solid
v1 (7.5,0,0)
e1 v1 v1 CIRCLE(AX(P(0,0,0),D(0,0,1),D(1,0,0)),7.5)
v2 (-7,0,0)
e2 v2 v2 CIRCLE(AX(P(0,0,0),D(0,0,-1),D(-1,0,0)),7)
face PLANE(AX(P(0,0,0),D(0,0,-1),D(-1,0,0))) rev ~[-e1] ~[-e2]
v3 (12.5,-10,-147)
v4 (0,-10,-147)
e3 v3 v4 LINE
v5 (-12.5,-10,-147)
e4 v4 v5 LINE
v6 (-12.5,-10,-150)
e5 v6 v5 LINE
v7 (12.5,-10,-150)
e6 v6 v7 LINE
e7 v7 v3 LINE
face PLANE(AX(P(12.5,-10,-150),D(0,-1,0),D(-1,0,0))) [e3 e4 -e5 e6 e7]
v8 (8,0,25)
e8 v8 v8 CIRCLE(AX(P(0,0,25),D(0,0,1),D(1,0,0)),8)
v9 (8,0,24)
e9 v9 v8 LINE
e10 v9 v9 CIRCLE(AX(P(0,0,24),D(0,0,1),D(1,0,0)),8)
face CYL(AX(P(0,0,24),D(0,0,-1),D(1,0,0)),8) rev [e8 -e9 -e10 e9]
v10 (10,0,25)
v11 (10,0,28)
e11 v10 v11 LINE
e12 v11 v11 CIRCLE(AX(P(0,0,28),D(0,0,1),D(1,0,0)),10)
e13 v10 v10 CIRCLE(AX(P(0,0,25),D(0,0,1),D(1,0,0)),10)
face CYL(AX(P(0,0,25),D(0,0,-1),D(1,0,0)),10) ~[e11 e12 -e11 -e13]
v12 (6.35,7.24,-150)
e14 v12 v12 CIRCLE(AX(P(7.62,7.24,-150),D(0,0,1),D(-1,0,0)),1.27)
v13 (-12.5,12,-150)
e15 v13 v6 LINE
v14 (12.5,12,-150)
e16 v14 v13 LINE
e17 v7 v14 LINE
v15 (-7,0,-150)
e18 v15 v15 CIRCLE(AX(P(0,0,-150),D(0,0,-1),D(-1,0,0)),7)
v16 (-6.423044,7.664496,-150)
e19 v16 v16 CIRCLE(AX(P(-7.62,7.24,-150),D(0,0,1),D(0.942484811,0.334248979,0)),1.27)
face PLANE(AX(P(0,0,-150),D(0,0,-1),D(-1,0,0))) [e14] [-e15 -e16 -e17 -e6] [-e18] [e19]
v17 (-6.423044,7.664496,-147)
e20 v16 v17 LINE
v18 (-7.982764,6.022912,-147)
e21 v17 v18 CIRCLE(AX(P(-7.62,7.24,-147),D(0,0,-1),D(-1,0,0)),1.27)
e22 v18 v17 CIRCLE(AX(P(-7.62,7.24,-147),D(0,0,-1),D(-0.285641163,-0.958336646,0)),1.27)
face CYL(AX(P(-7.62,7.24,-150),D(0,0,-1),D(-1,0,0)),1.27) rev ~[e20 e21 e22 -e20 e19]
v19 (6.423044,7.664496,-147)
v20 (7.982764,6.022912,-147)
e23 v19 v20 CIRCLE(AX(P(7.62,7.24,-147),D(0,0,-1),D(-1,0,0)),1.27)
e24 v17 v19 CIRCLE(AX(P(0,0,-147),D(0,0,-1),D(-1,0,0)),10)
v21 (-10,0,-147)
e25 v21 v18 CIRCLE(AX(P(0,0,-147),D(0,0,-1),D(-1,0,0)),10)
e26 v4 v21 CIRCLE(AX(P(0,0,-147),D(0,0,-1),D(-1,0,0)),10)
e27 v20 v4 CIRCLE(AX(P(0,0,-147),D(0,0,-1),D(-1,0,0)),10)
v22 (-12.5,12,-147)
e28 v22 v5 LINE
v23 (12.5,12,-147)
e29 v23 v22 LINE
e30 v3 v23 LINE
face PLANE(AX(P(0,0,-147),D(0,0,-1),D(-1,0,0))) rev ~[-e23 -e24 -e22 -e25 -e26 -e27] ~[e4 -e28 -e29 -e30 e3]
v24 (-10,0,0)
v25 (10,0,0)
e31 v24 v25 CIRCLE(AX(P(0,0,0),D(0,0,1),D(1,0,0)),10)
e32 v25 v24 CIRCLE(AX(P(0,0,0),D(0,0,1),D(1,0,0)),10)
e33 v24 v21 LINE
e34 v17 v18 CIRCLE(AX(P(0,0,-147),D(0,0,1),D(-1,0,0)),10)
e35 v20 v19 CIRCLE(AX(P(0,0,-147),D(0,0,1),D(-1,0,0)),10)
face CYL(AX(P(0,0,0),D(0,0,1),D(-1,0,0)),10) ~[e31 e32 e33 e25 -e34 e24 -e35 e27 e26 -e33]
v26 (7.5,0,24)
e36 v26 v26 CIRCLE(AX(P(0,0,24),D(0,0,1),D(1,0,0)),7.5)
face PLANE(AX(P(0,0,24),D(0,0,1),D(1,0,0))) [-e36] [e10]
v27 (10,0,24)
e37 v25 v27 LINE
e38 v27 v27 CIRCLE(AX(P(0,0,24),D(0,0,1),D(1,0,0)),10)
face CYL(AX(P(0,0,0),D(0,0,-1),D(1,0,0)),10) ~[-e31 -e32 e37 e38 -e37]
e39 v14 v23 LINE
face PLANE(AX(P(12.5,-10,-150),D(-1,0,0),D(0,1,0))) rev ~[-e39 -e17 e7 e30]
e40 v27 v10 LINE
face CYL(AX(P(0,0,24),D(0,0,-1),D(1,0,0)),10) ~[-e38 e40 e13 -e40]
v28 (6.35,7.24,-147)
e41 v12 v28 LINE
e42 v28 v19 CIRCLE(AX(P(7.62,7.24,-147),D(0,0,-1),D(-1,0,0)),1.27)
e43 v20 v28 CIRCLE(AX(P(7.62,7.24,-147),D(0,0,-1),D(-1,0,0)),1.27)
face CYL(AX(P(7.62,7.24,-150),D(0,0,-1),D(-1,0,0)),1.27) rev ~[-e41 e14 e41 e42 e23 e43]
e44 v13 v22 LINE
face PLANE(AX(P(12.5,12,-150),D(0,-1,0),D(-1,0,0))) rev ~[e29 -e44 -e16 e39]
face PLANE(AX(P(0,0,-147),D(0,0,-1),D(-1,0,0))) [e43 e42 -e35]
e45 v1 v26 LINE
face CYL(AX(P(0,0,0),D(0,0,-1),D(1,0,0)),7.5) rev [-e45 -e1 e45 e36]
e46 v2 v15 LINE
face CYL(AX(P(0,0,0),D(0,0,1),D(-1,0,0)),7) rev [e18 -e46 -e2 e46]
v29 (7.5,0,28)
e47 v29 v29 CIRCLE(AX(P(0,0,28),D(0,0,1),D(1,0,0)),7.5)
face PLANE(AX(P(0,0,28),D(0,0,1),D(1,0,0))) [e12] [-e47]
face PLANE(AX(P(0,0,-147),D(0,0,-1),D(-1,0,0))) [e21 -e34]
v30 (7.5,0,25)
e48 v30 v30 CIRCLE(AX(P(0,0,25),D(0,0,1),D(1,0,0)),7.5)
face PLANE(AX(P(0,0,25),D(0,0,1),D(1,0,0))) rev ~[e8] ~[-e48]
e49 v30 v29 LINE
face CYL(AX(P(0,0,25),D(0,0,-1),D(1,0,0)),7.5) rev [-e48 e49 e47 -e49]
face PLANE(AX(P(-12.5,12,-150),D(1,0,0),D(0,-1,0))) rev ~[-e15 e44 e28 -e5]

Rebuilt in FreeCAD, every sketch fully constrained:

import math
import FreeCAD as App
import Part
import Sketcher
from FreeCAD import Vector
Q = App.Units.Quantity

doc = App.newDocument("Part")
body = doc.addObject("PartDesign::Body", "Body")

# Sketch on XY plane
sketch1 = body.newObject("Sketcher::SketchObject", "Sketch")
sketch1.AttachmentSupport = (doc.getObject("XY_Plane"), [""])
sketch1.MapMode = "FlatFace"
sketch1.addGeometry([
    Part.Circle(Vector(0, 0, 0), Vector(0, 0, 1), 10),
    Part.Circle(Vector(0, 0, 0), Vector(0, 0, 1), 7.5),
], False)
sketch1.addConstraint([
    Sketcher.Constraint("Coincident", 0, 3, -1, 1),
    Sketcher.Constraint("Coincident", 1, 3, -1, 1),
    Sketcher.Constraint("Diameter", 0, Q("20 mm")),
    Sketcher.Constraint("Diameter", 1, Q("15 mm")),
])
pad1 = body.newObject("PartDesign::Pad", "Pad")
pad1.Profile = sketch1
pad1.Length = 24

# Sketch on XY plane
sketch2 = body.newObject("Sketcher::SketchObject", "Sketch001")
sketch2.AttachmentSupport = (doc.getObject("XY_Plane"), [""])
sketch2.MapMode = "FlatFace"
sketch2.addGeometry([
    Part.Circle(Vector(0, 0, 0), Vector(0, 0, 1), 10),
    Part.Circle(Vector(0, 0, 0), Vector(0, 0, 1), 7),
], False)
sketch2.addConstraint([
    Sketcher.Constraint("Coincident", 0, 3, -1, 1),
    Sketcher.Constraint("Coincident", 1, 3, -1, 1),
    Sketcher.Constraint("Diameter", 1, Q("14 mm")),
    Sketcher.Constraint("Diameter", 0, Q("20 mm")),
])
pad2 = body.newObject("PartDesign::Pad", "Pad001")
pad2.Profile = sketch2
pad2.Length = 150
pad2.Reversed = True

# Sketch on XY plane
sketch3 = body.newObject("Sketcher::SketchObject", "Sketch002")
sketch3.AttachmentSupport = (doc.getObject("XY_Plane"), [""])
sketch3.MapMode = "FlatFace"
sketch3.AttachmentOffset = App.Placement(Vector(0, 0, 24), App.Rotation())
sketch3.addGeometry([
    Part.Circle(Vector(0, 0, 0), Vector(0, 0, 1), 10),
    Part.Circle(Vector(0, 0, 0), Vector(0, 0, 1), 8),
], False)
sketch3.addConstraint([
    Sketcher.Constraint("Coincident", 0, 3, -1, 1),
    Sketcher.Constraint("Coincident", 1, 3, -1, 1),
    Sketcher.Constraint("Diameter", 0, Q("20 mm")),
    Sketcher.Constraint("Diameter", 1, Q("16 mm")),
])
pad3 = body.newObject("PartDesign::Pad", "Pad002")
pad3.Profile = sketch3
pad3.Length = 1

# Sketch on XY plane
sketch4 = body.newObject("Sketcher::SketchObject", "Sketch003")
sketch4.AttachmentSupport = (doc.getObject("XY_Plane"), [""])
sketch4.MapMode = "FlatFace"
sketch4.AttachmentOffset = App.Placement(Vector(0, 0, 25), App.Rotation())
sketch4.addGeometry([
    Part.Circle(Vector(0, 0, 0), Vector(0, 0, 1), 10),
    Part.Circle(Vector(0, 0, 0), Vector(0, 0, 1), 7.5),
], False)
sketch4.addConstraint([
    Sketcher.Constraint("Coincident", 0, 3, -1, 1),
    Sketcher.Constraint("Coincident", 1, 3, -1, 1),
    Sketcher.Constraint("Diameter", 0, Q("20 mm")),
    Sketcher.Constraint("Diameter", 1, Q("15 mm")),
])
pad4 = body.newObject("PartDesign::Pad", "Pad003")
pad4.Profile = sketch4
pad4.Length = 3

# Sketch on XY plane
sketch5 = body.newObject("Sketcher::SketchObject", "Sketch004")
sketch5.AttachmentSupport = (doc.getObject("XY_Plane"), [""])
sketch5.MapMode = "FlatFace"
sketch5.AttachmentOffset = App.Placement(Vector(0, 0, -150), App.Rotation())
sketch5.addGeometry([
    Part.LineSegment(Vector(12.5, 12, 0), Vector(12.5, -10, 0)),  # 0
    Part.LineSegment(Vector(12.5, -10, 0), Vector(0, -10, 0)),  # 1
    Part.LineSegment(Vector(0, -10, 0), Vector(-12.5, -10, 0)),  # 2
    Part.LineSegment(Vector(-12.5, -10, 0), Vector(-12.5, 12, 0)),  # 3
    Part.LineSegment(Vector(-12.5, 12, 0), Vector(12.5, 12, 0)),  # 4
    Part.ArcOfCircle(Part.Circle(Vector(0, 0, 0), Vector(0, 0, 1), 10), math.radians(142.965827), math.radians(270)),  # 5
    Part.ArcOfCircle(Part.Circle(Vector(0, 0, 0), Vector(0, 0, 1), 10), math.radians(-90), math.radians(37.034173)),  # 6
    Part.ArcOfCircle(Part.Circle(Vector(7.62, 7.24, 0), Vector(0, 0, 1), 1.27), math.radians(-73.402822), math.radians(160.473125)),  # 7
    Part.ArcOfCircle(Part.Circle(Vector(0, 0, 0), Vector(0, 0, 1), 10), math.radians(50.03613), math.radians(129.96387)),  # 8
    Part.ArcOfCircle(Part.Circle(Vector(-7.62, 7.24, 0), Vector(0, 0, 1), 1.27), math.radians(19.526875), math.radians(253.402822)),  # 9
], False)
sketch5.addConstraint([
    Sketcher.Constraint("Coincident", 0, 2, 1, 1),
    Sketcher.Constraint("Coincident", 1, 2, 2, 1),
    Sketcher.Constraint("Coincident", 2, 2, 3, 1),
    Sketcher.Constraint("Coincident", 3, 2, 4, 1),
    Sketcher.Constraint("Coincident", 4, 2, 0, 1),
    Sketcher.Constraint("Tangent", 5, 2, 6, 1),
    Sketcher.Constraint("Coincident", 6, 2, 7, 1),
    Sketcher.Constraint("Coincident", 7, 2, 8, 1),
    Sketcher.Constraint("Coincident", 8, 2, 9, 1),
    Sketcher.Constraint("Coincident", 9, 2, 5, 1),
    Sketcher.Constraint("Vertical", 0),
    Sketcher.Constraint("Horizontal", 1),
    Sketcher.Constraint("Horizontal", 2),
    Sketcher.Constraint("Vertical", 3),
    Sketcher.Constraint("Horizontal", 4),
    Sketcher.Constraint("Coincident", 5, 3, -1, 1),
    Sketcher.Constraint("Coincident", 8, 3, -1, 1),
    Sketcher.Constraint("Coincident", 5, 2, 1, 2),
    Sketcher.Constraint("Equal", 5, 6),
    Sketcher.Constraint("Equal", 6, 8),
    Sketcher.Constraint("Equal", 7, 9),
    Sketcher.Constraint("Symmetric", 7, 3, 9, 3, -2),
    Sketcher.Constraint("PointOnObject", 1, 2, -2),
    Sketcher.Constraint("Equal", 1, 2),
    Sketcher.Constraint("DistanceX", 4, 1, 4, 2, Q("25 mm")),
    Sketcher.Constraint("DistanceY", 0, 2, 0, 1, Q("22 mm")),
    Sketcher.Constraint("Radius", 7, Q("1.27 mm")),
    Sketcher.Constraint("Radius", 5, Q("10 mm")),
    Sketcher.Constraint("DistanceX", 9, 3, 7, 3, Q("15.24 mm")),
    Sketcher.Constraint("DistanceY", 0, 2, 7, 3, Q("17.24 mm")),
])
pad5 = body.newObject("PartDesign::Pad", "Pad004")
pad5.Profile = sketch5
pad5.Length = 3

# Sketch on XY plane
sketch6 = body.newObject("Sketcher::SketchObject", "Sketch005")
sketch6.AttachmentSupport = (doc.getObject("XY_Plane"), [""])
sketch6.MapMode = "FlatFace"
sketch6.AttachmentOffset = App.Placement(Vector(0, 0, -150), App.Rotation())
sketch6.addGeometry([
    Part.Circle(Vector(7.62, 7.24, 0), Vector(0, 0, 1), 1.27),
    Part.Circle(Vector(-7.62, 7.24, 0), Vector(0, 0, 1), 1.27),
], False)
sketch6.addConstraint([
    Sketcher.Constraint("Equal", 0, 1),
    Sketcher.Constraint("Symmetric", 0, 3, 1, 3, -2),
    Sketcher.Constraint("Diameter", 0, Q("2.54 mm")),
    Sketcher.Constraint("DistanceX", 1, 3, 0, 3, Q("15.24 mm")),
    Sketcher.Constraint("DistanceY", -1, 1, 0, 3, Q("7.24 mm")),
])
pocket1 = body.newObject("PartDesign::Pocket", "Pocket")
pocket1.Profile = sketch6
pocket1.Length = 3
pocket1.Reversed = True

doc.recompute()
